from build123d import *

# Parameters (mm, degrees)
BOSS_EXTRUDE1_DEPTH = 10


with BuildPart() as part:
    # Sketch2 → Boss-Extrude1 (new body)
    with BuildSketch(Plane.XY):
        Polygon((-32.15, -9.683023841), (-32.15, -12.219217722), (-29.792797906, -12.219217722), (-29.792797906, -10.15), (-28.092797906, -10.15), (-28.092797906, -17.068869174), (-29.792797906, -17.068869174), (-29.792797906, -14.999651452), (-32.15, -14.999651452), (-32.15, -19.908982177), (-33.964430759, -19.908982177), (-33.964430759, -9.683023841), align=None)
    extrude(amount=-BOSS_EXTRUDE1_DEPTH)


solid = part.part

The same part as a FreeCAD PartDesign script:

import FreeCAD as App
import Part
import Sketcher
Q = App.Units.Quantity


def add_polygon(sketch, points):
    """Adds a closed chain of lines whose ends are joined by coincident constraints."""
    first, n = sketch.GeometryCount, len(points)
    for a, b in zip(points, points[1:] + points[:1]):
        sketch.addGeometry(Part.LineSegment(App.Vector(*a, 0), App.Vector(*b, 0)), False)
    for i in range(n):
        sketch.addConstraint(Sketcher.Constraint("Coincident", first + i, 2, first + (i + 1) % n, 1))

doc = App.newDocument("Part")
body = doc.addObject("PartDesign::Body", "Body")

sketch1 = body.newObject("Sketcher::SketchObject", "Sketch")
sketch1.AttachmentSupport = (doc.getObject("XY_Plane"), [""])
sketch1.MapMode = "FlatFace"
add_polygon(sketch1, [(-32.1, -12.2), (-32.1, -9.7), (-34, -9.7), (-34, -19.9), (-32.1, -19.9), (-32.1, -15), (-29.8, -15), (-29.8, -17.1), (-28.1, -17.1), (-28.1, -10.2), (-29.8, -10.2), (-29.8, -12.2)])
sketch1.addConstraint([
    Sketcher.Constraint("Vertical", 0),
    Sketcher.Constraint("Horizontal", 1),
    Sketcher.Constraint("Vertical", 2),
    Sketcher.Constraint("Horizontal", 3),
    Sketcher.Constraint("Vertical", 4),
    Sketcher.Constraint("Horizontal", 5),
    Sketcher.Constraint("Vertical", 6),
    Sketcher.Constraint("Horizontal", 7),
    Sketcher.Constraint("Vertical", 8),
    Sketcher.Constraint("Horizontal", 9),
    Sketcher.Constraint("Vertical", 10),
    Sketcher.Constraint("Horizontal", 11),
    Sketcher.Constraint("Vertical", 0, 2, 3, 2),
    Sketcher.Constraint("Vertical", 6, 2, 9, 2),
    Sketcher.Constraint("Equal", 6, 10),
    Sketcher.Constraint("DistanceX", 7, 1, 7, 2, Q("1.7 mm")),
    Sketcher.Constraint("DistanceX", 0, 2, -1, 1, Q("32.15 mm")),
    Sketcher.Constraint("DistanceY", 8, 2, -1, 1, Q("10.15 mm")),
    Sketcher.Constraint("DistanceX", 1, 2, 1, 1, Q("1.814431 mm")),
    Sketcher.Constraint("DistanceY", 2, 2, 2, 1, Q("10.225958 mm")),
    Sketcher.Constraint("DistanceY", 4, 1, 4, 2, Q("4.909331 mm")),
    Sketcher.Constraint("DistanceY", 8, 1, 8, 2, Q("6.918869 mm")),
    Sketcher.Constraint("DistanceX", 5, 1, 5, 2, Q("2.357202 mm")),
    Sketcher.Constraint("DistanceY", 0, 1, 0, 2, Q("2.536194 mm")),
])
pad1 = body.newObject("PartDesign::Pad", "Pad")
pad1.Profile = sketch1
pad1.Length = 10
pad1.Reversed = True

doc.recompute()
